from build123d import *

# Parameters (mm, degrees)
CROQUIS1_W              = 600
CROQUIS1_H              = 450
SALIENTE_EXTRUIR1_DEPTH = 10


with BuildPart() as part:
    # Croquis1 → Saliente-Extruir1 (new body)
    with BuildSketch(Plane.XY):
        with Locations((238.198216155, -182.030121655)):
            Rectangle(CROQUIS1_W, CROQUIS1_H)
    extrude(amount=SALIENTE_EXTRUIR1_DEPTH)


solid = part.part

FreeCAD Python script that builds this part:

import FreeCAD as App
import Part
import Sketcher

V = App.Vector
Q = App.Units.Quantity

doc = App.newDocument("Part")
body = doc.addObject("PartDesign::Body", "Body")

# Sketch on XY plane
sketch1 = body.newObject("Sketcher::SketchObject", "Sketch")
sketch1.AttachmentSupport = (doc.getObject("XY_Plane"), [""])
sketch1.MapMode = "FlatFace"
sketch1.addGeometry([
    Part.LineSegment(V(-61.801784, 42.969878, 0), V(-61.801784, -407.030122, 0)),
    Part.LineSegment(V(-61.801784, -407.030122, 0), V(538.198216, -407.030122, 0)),
    Part.LineSegment(V(538.198216, -407.030122, 0), V(538.198216, 42.969878, 0)),
    Part.LineSegment(V(538.198216, 42.969878, 0), V(-61.801784, 42.969878, 0)),
], False)
sketch1.addConstraint([
    Sketcher.Constraint("Coincident", 0, 2, 1, 1),
    Sketcher.Constraint("Coincident", 1, 2, 2, 1),
    Sketcher.Constraint("Coincident", 2, 2, 3, 1),
    Sketcher.Constraint("Coincident", 3, 2, 0, 1),
    Sketcher.Constraint("Vertical", 0),
    Sketcher.Constraint("Horizontal", 1),
    Sketcher.Constraint("Vertical", 2),
    Sketcher.Constraint("Horizontal", 3),
    Sketcher.Constraint("DistanceX", 1, 1, 1, 2, Q("600 mm")),
    Sketcher.Constraint("DistanceY", 0, 2, 0, 1, Q("450 mm")),
    Sketcher.Constraint("DistanceY", 0, 2, -1, 1, Q("407.030122 mm")),
    Sketcher.Constraint("DistanceX", 0, 2, -1, 1, Q("61.801784 mm")),
])
pad1 = body.newObject("PartDesign::Pad", "Pad")
pad1.Profile = sketch1
pad1.Length = 10

doc.recompute()
